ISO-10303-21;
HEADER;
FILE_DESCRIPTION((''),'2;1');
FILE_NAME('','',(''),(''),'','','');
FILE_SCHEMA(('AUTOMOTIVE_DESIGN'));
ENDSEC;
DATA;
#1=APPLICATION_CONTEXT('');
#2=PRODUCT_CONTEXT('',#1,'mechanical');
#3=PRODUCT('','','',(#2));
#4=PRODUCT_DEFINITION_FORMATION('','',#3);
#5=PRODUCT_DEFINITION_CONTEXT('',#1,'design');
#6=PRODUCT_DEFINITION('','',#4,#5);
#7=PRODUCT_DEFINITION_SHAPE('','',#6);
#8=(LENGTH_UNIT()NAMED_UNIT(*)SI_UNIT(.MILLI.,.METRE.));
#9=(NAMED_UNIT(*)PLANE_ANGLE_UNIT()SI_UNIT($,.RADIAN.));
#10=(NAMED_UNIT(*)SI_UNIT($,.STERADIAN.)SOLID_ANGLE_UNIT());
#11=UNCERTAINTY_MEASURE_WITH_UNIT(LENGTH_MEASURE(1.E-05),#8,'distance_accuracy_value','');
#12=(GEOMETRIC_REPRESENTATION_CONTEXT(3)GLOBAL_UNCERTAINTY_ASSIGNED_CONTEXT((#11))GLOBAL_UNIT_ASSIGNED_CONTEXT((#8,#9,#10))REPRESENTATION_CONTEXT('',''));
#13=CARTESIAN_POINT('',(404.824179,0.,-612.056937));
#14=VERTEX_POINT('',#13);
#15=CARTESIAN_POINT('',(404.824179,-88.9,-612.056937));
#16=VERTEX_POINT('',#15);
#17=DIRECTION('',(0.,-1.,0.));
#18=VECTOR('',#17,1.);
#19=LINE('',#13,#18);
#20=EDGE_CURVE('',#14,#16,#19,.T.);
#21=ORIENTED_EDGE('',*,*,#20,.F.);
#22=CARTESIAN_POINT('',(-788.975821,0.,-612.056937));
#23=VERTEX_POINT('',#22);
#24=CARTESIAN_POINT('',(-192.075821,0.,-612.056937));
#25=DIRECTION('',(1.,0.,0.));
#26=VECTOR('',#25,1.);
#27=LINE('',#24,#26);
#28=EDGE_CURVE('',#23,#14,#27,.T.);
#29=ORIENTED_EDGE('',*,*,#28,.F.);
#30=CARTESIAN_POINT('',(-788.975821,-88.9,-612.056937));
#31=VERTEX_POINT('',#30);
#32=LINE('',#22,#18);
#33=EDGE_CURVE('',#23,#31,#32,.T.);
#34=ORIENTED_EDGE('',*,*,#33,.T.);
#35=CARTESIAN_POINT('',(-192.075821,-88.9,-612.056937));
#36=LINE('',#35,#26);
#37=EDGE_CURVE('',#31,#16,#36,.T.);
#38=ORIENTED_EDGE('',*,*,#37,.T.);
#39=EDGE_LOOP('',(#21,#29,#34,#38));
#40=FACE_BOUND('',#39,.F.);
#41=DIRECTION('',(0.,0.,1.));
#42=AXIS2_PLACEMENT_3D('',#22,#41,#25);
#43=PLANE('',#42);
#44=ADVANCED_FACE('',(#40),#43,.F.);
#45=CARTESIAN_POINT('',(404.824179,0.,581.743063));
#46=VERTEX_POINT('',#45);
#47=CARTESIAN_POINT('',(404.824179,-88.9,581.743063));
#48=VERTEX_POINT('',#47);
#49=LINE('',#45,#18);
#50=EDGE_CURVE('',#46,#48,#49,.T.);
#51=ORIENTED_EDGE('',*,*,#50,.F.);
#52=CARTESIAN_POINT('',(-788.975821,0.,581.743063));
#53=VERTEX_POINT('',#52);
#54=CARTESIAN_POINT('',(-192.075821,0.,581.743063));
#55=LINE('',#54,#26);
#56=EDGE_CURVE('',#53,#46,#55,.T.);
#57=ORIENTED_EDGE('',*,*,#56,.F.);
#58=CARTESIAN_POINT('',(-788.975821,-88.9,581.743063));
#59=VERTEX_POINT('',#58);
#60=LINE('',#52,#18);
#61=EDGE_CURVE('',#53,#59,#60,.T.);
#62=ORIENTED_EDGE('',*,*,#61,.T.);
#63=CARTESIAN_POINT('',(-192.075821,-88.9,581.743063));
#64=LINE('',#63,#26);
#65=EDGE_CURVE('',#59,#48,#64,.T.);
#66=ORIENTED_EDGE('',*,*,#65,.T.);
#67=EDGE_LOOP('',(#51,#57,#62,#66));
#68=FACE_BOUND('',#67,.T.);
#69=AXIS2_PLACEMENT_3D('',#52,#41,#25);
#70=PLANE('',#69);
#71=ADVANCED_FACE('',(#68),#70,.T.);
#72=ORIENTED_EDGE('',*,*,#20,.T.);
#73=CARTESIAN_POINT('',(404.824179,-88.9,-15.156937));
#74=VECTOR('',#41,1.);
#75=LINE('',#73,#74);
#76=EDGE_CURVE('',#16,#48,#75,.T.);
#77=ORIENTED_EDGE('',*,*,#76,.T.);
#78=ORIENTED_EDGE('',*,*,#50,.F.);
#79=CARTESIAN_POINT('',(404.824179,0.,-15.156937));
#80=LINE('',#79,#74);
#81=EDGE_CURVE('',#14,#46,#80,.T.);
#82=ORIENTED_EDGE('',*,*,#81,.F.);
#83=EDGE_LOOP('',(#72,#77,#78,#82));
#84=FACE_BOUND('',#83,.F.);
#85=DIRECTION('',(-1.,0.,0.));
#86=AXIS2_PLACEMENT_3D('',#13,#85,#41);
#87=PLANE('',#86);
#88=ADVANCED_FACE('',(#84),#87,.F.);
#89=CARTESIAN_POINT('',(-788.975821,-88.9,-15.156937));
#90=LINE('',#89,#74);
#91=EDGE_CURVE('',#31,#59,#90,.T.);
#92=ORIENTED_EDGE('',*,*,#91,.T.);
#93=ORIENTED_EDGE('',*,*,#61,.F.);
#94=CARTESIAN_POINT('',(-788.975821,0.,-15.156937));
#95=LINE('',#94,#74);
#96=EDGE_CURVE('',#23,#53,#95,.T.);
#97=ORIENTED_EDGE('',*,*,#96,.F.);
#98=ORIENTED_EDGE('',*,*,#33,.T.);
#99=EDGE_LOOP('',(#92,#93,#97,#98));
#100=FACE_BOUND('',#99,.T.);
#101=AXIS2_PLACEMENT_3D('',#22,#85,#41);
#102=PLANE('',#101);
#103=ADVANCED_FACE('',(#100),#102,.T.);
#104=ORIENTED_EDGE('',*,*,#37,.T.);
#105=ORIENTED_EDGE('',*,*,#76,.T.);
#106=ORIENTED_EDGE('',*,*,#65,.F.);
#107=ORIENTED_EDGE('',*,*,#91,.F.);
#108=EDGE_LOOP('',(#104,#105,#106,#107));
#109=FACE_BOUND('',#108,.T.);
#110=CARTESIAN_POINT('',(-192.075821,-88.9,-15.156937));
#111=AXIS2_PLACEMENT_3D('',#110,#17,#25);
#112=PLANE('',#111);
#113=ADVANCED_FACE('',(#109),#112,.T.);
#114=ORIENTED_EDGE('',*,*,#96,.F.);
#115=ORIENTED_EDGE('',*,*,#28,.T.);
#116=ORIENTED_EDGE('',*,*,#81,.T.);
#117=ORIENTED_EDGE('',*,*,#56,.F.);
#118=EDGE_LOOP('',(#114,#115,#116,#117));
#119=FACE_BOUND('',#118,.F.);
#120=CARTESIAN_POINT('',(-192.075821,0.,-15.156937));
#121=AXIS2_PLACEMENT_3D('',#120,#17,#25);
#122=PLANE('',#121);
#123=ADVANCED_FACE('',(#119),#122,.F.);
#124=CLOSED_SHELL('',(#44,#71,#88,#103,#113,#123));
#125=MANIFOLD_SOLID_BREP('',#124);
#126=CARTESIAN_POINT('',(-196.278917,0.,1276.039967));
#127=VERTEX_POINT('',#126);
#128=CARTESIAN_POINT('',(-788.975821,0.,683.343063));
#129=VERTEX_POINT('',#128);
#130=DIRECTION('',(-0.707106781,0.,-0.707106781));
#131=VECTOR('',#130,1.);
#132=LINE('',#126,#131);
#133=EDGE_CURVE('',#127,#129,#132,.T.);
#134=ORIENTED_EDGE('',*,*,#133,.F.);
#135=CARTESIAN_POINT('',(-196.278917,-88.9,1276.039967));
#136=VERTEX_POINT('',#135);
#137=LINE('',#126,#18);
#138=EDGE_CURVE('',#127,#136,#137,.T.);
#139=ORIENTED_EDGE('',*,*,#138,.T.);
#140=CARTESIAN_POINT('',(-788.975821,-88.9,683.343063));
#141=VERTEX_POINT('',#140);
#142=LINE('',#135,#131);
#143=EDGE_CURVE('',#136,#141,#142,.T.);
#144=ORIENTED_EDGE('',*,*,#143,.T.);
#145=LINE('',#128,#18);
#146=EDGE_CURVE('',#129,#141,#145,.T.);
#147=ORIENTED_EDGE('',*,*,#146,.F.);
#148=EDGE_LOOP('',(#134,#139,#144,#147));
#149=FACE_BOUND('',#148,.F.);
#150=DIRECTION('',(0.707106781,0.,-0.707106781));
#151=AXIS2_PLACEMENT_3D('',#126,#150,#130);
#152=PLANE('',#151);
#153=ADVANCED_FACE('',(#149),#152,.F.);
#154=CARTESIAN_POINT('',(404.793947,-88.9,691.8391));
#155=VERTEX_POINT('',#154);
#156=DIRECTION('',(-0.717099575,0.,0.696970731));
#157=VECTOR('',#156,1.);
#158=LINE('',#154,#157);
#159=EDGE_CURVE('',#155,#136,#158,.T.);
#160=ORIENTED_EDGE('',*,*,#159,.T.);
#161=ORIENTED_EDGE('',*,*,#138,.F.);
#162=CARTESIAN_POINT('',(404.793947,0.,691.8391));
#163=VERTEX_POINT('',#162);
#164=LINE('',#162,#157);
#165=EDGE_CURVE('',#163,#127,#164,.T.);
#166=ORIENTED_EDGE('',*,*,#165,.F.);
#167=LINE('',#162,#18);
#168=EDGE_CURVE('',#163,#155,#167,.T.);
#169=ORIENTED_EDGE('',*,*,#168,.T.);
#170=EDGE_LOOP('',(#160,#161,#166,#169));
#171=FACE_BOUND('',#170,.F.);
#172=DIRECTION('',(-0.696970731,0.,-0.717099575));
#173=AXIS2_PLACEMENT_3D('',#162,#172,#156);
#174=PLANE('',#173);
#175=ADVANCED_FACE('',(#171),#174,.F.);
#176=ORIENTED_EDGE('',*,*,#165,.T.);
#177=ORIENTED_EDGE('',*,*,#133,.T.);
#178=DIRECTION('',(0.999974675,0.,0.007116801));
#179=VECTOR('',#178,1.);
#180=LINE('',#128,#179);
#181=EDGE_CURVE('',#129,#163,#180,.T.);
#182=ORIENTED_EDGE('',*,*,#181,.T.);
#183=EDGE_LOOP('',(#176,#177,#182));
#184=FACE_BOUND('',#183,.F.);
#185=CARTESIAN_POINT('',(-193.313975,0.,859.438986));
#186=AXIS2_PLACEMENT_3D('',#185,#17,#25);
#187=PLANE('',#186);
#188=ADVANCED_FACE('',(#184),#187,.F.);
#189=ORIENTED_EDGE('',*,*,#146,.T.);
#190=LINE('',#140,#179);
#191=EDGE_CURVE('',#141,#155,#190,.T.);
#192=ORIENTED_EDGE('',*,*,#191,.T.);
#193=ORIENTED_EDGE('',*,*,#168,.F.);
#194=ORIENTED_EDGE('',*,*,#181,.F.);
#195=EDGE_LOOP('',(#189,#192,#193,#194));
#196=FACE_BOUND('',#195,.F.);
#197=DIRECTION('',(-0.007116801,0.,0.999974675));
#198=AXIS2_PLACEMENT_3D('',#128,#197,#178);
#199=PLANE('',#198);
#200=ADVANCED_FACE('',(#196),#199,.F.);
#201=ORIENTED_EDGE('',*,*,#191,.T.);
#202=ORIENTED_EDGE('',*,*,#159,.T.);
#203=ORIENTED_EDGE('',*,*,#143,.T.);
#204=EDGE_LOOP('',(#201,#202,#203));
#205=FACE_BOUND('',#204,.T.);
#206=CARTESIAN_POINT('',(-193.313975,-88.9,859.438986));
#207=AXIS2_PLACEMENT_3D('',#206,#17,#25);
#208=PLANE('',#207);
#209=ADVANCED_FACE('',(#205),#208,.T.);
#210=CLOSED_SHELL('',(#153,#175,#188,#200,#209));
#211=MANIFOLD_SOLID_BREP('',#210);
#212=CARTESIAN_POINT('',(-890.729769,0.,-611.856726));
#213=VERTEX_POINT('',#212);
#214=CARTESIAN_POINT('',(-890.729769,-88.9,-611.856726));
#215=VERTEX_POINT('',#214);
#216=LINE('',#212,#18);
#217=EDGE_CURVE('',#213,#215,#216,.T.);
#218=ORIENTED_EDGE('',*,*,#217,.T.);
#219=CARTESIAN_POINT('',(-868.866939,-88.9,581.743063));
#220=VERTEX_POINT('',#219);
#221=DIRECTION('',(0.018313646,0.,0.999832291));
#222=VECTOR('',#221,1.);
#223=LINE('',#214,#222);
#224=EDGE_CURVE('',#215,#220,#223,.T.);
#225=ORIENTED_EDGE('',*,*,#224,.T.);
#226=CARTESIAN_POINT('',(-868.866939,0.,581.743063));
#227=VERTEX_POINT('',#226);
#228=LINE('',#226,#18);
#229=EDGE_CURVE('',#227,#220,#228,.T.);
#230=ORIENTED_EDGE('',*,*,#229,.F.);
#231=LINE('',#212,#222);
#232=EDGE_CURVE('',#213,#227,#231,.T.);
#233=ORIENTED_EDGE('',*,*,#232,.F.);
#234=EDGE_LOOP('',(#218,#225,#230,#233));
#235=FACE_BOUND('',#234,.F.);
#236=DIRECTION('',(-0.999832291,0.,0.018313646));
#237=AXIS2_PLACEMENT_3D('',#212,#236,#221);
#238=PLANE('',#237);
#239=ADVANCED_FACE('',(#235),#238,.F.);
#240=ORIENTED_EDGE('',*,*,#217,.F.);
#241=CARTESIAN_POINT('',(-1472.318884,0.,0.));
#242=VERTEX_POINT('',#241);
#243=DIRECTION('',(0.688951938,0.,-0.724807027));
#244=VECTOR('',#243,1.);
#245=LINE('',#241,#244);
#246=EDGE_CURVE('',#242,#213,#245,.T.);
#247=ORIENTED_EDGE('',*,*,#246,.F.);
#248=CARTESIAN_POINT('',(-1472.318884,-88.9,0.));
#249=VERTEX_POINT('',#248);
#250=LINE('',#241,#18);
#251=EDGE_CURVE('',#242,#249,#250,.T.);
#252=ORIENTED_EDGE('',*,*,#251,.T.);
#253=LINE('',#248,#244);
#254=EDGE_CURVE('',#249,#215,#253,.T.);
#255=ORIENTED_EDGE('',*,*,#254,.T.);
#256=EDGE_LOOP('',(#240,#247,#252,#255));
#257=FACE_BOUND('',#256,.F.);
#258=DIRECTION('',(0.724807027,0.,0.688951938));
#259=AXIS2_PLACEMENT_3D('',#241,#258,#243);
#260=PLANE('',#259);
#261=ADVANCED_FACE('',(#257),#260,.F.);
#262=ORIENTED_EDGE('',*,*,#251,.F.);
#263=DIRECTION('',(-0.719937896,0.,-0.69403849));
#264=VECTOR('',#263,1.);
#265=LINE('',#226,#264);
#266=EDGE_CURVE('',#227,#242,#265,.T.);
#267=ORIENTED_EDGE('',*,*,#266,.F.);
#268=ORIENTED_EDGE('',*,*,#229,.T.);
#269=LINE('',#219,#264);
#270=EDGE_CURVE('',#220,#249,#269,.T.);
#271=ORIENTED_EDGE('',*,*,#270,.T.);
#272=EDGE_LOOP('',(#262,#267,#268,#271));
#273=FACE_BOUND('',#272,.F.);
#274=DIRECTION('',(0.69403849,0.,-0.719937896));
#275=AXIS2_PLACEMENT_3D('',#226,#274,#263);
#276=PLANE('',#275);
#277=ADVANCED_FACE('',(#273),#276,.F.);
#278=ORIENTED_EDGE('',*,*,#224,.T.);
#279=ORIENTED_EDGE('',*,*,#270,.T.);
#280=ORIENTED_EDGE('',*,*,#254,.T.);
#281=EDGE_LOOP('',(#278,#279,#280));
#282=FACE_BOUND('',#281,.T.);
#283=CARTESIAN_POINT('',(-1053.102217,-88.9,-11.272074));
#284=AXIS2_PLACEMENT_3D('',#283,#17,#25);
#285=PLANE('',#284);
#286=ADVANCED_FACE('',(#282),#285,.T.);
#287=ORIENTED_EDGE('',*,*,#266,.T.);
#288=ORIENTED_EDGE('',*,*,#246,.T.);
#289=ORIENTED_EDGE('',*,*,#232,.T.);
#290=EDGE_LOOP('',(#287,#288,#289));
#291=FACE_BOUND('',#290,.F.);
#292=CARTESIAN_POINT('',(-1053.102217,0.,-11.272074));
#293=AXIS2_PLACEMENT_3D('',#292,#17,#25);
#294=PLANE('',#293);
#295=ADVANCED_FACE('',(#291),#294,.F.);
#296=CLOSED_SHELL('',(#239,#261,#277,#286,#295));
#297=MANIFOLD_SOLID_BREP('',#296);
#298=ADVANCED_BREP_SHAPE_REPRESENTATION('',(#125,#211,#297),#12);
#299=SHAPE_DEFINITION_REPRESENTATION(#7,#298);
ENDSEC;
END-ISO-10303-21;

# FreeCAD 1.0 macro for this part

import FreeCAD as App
import Part
import Sketcher
Q = App.Units.Quantity

doc = App.newDocument("Part")
body = doc.addObject("PartDesign::Body", "Body")

sketch1 = body.newObject("Sketcher::SketchObject", "Sketch")
sketch1.AttachmentSupport = (doc.getObject("XZ_Plane"), [""])
sketch1.MapMode = "FlatFace"
sketch1.addGeometry(Part.LineSegment(App.Vector(-788.975821, 581.743063, 0), App.Vector(-788.975821, -612.056937, 0)), False)
sketch1.addGeometry(Part.LineSegment(App.Vector(-788.975821, -612.056937, 0), App.Vector(404.824179, -612.056937, 0)), False)
sketch1.addGeometry(Part.LineSegment(App.Vector(404.824179, -612.056937, 0), App.Vector(404.824179, 581.743063, 0)), False)
sketch1.addGeometry(Part.LineSegment(App.Vector(404.824179, 581.743063, 0), App.Vector(-788.975821, 581.743063, 0)), False)
sketch1.addConstraint(Sketcher.Constraint("Coincident", 0, 2, 1, 1))
sketch1.addConstraint(Sketcher.Constraint("Coincident", 1, 2, 2, 1))
sketch1.addConstraint(Sketcher.Constraint("Coincident", 2, 2, 3, 1))
sketch1.addConstraint(Sketcher.Constraint("Coincident", 3, 2, 0, 1))
sketch1.addConstraint(Sketcher.Constraint("Vertical", 0))
sketch1.addConstraint(Sketcher.Constraint("Horizontal", 1))
sketch1.addConstraint(Sketcher.Constraint("Vertical", 2))
sketch1.addConstraint(Sketcher.Constraint("Horizontal", 3))
sketch1.addConstraint(Sketcher.Constraint("Equal", 3, 0))
sketch1.addConstraint(Sketcher.Constraint("DistanceX", 1, 1, 1, 2, Q("47 in")))
sketch1.addConstraint(Sketcher.Constraint("DistanceX", 0, 2, -1, 1, Q("788.975821 mm")))
sketch1.addConstraint(Sketcher.Constraint("DistanceY", 0, 2, -1, 1, Q("612.056937 mm")))
pad1 = body.newObject("PartDesign::Pad", "Pad")
pad1.Profile = sketch1
pad1.Length = Q("3.5 in")
body2 = doc.addObject("PartDesign::Body", "Body001")

sketch2 = body2.newObject("Sketcher::SketchObject", "Sketch001")
sketch2.AttachmentSupport = (doc.getObject("XZ_Plane001"), [""])
sketch2.MapMode = "FlatFace"
sketch2.addGeometry(Part.LineSegment(App.Vector(-890.729769, -611.856726, 0), App.Vector(-868.866939, 581.743063, 0)), False)
sketch2.addGeometry(Part.LineSegment(App.Vector(-868.866939, 581.743063, 0), App.Vector(-1472.318884, 0, 0)), False)
sketch2.addGeometry(Part.LineSegment(App.Vector(-1472.318884, 0, 0), App.Vector(-890.729769, -611.856726, 0)), False)
sketch2.addConstraint(Sketcher.Constraint("Coincident", 0, 2, 1, 1))
sketch2.addConstraint(Sketcher.Constraint("Coincident", 1, 2, 2, 1))
sketch2.addConstraint(Sketcher.Constraint("Coincident", 2, 2, 0, 1))
sketch2.addConstraint(Sketcher.Constraint("PointOnObject", 1, 2, -1))
sketch2.addConstraint(Sketcher.Constraint("Distance", 0, Q("47 in")))
sketch2.addConstraint(Sketcher.Constraint("Distance", 1, Q("33 in")))
sketch2.addConstraint(Sketcher.Constraint("DistanceX", 0, 2, -1, 1, Q("868.866939 mm")))
sketch2.addConstraint(Sketcher.Constraint("DistanceX", 2, 2, -1, 1, Q("890.729769 mm")))
sketch2.addConstraint(Sketcher.Constraint("Distance", 2, Q("844.165003 mm")))
pad2 = body2.newObject("PartDesign::Pad", "Pad001")
pad2.Profile = sketch2
pad2.Length = Q("3.5 in")
body3 = doc.addObject("PartDesign::Body", "Body002")

sketch3 = body3.newObject("Sketcher::SketchObject", "Sketch002")
sketch3.AttachmentSupport = (doc.getObject("XZ_Plane002"), [""])
sketch3.MapMode = "FlatFace"
sketch3.addGeometry(Part.LineSegment(App.Vector(-788.975821, 683.343063, 0), App.Vector(404.793947, 691.8391, 0)), False)
sketch3.addGeometry(Part.LineSegment(App.Vector(404.793947, 691.8391, 0), App.Vector(-196.278917, 1276.039967, 0)), False)
sketch3.addGeometry(Part.LineSegment(App.Vector(-196.278917, 1276.039967, 0), App.Vector(-788.975821, 683.343063, 0)), False)
sketch3.addConstraint(Sketcher.Constraint("Coincident", 0, 2, 1, 1))
sketch3.addConstraint(Sketcher.Constraint("Coincident", 1, 2, 2, 1))
sketch3.addConstraint(Sketcher.Constraint("Coincident", 2, 2, 0, 1))
sketch3.addConstraint(Sketcher.Constraint("Equal", 1, 2))
sketch3.addConstraint(Sketcher.Constraint("Distance", 0, Q("47 in")))
sketch3.addConstraint(Sketcher.Constraint("Distance", 1, Q("33 in")))
sketch3.addConstraint(Sketcher.Constraint("Angle", 2, Q("-135 deg")))
sketch3.addConstraint(Sketcher.Constraint("DistanceY", -1, 1, 0, 2, Q("691.8391 mm")))
sketch3.addConstraint(Sketcher.Constraint("DistanceX", 2, 2, -1, 1, Q("788.975821 mm")))
pad3 = body3.newObject("PartDesign::Pad", "Pad002")
pad3.Profile = sketch3
pad3.Length = Q("3.5 in")

doc.recompute()
